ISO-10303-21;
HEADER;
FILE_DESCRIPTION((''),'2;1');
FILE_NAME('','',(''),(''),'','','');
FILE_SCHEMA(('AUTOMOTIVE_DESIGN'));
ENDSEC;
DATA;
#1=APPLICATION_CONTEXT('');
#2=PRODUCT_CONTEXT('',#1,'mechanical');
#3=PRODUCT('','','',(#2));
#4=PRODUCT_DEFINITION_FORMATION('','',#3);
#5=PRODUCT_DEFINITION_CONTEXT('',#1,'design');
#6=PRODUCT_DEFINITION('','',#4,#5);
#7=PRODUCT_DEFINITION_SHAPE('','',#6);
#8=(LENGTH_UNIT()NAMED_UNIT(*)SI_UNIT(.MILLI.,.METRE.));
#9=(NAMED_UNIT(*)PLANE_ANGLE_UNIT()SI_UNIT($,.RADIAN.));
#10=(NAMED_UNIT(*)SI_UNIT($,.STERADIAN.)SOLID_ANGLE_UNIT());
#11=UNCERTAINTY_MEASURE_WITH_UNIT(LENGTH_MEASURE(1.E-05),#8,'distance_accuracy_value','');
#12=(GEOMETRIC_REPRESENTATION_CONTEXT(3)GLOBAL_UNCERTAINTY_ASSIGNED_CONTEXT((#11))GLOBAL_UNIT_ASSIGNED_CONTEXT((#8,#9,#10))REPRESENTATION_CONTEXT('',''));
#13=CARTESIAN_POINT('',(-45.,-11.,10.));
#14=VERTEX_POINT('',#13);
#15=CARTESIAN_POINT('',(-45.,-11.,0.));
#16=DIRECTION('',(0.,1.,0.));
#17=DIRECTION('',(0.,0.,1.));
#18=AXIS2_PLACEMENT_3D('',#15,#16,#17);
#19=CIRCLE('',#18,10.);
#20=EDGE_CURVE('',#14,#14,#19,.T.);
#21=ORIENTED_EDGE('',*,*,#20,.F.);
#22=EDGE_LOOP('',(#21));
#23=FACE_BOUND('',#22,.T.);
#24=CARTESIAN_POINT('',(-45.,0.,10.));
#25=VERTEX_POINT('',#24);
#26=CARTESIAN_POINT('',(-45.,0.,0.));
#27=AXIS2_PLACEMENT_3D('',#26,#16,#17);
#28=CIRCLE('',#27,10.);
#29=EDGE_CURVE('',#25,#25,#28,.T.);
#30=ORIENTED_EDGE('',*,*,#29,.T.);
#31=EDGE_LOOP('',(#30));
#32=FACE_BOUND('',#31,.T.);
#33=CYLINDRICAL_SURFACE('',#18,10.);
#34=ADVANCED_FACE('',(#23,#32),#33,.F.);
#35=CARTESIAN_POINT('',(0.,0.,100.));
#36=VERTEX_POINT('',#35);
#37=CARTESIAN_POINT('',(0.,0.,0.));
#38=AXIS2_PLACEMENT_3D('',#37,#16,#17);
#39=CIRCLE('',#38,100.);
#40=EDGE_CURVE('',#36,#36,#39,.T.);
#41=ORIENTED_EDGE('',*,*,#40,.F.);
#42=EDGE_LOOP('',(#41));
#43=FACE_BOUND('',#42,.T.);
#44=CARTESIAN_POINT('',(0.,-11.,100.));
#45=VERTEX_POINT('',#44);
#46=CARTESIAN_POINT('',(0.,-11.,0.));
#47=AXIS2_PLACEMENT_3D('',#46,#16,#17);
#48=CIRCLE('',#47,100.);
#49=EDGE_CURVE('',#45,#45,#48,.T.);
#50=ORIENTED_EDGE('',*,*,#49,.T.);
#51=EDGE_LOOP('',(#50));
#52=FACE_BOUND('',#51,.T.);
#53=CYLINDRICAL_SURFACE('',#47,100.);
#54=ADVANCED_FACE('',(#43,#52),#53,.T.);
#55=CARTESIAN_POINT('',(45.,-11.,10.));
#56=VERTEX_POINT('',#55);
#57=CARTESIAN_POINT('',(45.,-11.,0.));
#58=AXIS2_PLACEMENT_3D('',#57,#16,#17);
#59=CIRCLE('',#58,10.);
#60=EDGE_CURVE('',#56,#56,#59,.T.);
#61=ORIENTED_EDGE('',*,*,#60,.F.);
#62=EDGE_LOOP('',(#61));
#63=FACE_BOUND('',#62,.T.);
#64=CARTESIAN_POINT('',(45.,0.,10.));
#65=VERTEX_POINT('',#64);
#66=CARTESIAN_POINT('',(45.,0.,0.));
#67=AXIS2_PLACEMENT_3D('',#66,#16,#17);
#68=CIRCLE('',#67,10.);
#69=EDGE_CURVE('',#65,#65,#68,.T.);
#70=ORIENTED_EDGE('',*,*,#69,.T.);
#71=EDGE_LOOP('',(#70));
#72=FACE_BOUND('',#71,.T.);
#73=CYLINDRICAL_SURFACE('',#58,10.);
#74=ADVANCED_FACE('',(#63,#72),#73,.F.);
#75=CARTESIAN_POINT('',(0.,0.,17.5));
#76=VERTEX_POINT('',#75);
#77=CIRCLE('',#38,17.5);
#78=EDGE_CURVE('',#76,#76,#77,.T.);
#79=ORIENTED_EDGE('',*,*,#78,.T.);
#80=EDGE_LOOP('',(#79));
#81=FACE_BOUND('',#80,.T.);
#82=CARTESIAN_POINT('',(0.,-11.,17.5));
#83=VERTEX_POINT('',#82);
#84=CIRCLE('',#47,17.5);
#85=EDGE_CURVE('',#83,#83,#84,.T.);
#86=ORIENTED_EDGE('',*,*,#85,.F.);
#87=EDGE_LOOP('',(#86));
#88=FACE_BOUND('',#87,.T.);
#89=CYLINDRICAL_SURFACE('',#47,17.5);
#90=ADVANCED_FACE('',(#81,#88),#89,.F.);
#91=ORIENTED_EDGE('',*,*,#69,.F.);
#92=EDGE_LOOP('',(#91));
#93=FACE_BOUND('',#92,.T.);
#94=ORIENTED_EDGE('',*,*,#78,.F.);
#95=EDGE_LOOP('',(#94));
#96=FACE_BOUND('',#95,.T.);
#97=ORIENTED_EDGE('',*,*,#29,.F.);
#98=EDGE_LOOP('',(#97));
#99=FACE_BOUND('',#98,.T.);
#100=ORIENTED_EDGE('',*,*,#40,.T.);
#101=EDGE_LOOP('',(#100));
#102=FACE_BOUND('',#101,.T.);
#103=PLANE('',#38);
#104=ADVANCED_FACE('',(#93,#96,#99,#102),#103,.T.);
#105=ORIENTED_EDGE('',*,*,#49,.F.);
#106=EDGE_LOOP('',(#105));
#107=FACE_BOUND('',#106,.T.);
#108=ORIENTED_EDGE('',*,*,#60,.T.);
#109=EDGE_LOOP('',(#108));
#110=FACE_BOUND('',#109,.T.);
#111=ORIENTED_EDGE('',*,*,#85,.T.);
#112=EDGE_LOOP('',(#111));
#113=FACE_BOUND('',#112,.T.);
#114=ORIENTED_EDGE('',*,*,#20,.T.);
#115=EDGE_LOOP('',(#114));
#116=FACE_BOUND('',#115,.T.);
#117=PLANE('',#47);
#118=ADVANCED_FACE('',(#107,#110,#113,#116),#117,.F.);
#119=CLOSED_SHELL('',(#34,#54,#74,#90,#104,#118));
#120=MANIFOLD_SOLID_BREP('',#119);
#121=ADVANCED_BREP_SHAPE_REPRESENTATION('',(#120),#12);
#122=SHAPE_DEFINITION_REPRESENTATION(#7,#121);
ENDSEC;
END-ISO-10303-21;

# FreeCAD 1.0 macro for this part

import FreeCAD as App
import Part
import Sketcher

doc = App.newDocument("Part")
params = doc.addObject("Spreadsheet::Sheet", "Params")
for row, (alias, value) in enumerate([
    ("sketch1_diameter", "200 mm"),
    ("sketch1_diameter2", "20 mm"),
    ("sketch1_diameter3", "35 mm"),
    ("pad1_length", "11 mm"),
], start=1):
    params.set(f"A{row}", alias)
    params.set(f"B{row}", "=" + value)
    params.setAlias(f"B{row}", alias)

body = doc.addObject("PartDesign::Body", "Body")

sketch1 = body.newObject("Sketcher::SketchObject", "Sketch")
sketch1.AttachmentSupport = (doc.getObject("XZ_Plane"), [""])
sketch1.MapMode = "FlatFace"
sketch1.addGeometry(Part.Circle(App.Vector(0, 0, 0), App.Vector(0, 0, 1), 100), False)
sketch1.addGeometry(Part.Circle(App.Vector(-45, 0, 0), App.Vector(0, 0, 1), 10), False)
sketch1.addGeometry(Part.Circle(App.Vector(45, 0, 0), App.Vector(0, 0, 1), 10), False)
sketch1.addGeometry(Part.Circle(App.Vector(0, 0, 0), App.Vector(0, 0, 1), 18), False)
sketch1.addConstraint(Sketcher.Constraint("Coincident", 0, 3, -1, 1))
sketch1.addConstraint(Sketcher.Constraint("Coincident", 3, 3, -1, 1))
sketch1.addConstraint(Sketcher.Constraint("Equal", 1, 2))
sketch1.addConstraint(Sketcher.Constraint("Symmetric", 1, 3, 2, 3, -1, 1))
sketch1.addConstraint(Sketcher.Constraint("PointOnObject", 1, 3, -1))
sketch1.addConstraint(Sketcher.Constraint("Diameter", 0, 200.0))
sketch1.addConstraint(Sketcher.Constraint("Diameter", 1, 20.0))
sketch1.addConstraint(Sketcher.Constraint("Diameter", 3, 35.0))
sketch1.addConstraint(Sketcher.Constraint("DistanceX", 1, 3, -1, 1, 45.0))
sketch1.setExpression("Constraints[5]", "Params.sketch1_diameter")
sketch1.setExpression("Constraints[6]", "Params.sketch1_diameter2")
sketch1.setExpression("Constraints[7]", "Params.sketch1_diameter3")
pad1 = body.newObject("PartDesign::Pad", "Pad")
pad1.Profile = sketch1
pad1.setExpression("Length", "Params.pad1_length")

doc.recompute()
